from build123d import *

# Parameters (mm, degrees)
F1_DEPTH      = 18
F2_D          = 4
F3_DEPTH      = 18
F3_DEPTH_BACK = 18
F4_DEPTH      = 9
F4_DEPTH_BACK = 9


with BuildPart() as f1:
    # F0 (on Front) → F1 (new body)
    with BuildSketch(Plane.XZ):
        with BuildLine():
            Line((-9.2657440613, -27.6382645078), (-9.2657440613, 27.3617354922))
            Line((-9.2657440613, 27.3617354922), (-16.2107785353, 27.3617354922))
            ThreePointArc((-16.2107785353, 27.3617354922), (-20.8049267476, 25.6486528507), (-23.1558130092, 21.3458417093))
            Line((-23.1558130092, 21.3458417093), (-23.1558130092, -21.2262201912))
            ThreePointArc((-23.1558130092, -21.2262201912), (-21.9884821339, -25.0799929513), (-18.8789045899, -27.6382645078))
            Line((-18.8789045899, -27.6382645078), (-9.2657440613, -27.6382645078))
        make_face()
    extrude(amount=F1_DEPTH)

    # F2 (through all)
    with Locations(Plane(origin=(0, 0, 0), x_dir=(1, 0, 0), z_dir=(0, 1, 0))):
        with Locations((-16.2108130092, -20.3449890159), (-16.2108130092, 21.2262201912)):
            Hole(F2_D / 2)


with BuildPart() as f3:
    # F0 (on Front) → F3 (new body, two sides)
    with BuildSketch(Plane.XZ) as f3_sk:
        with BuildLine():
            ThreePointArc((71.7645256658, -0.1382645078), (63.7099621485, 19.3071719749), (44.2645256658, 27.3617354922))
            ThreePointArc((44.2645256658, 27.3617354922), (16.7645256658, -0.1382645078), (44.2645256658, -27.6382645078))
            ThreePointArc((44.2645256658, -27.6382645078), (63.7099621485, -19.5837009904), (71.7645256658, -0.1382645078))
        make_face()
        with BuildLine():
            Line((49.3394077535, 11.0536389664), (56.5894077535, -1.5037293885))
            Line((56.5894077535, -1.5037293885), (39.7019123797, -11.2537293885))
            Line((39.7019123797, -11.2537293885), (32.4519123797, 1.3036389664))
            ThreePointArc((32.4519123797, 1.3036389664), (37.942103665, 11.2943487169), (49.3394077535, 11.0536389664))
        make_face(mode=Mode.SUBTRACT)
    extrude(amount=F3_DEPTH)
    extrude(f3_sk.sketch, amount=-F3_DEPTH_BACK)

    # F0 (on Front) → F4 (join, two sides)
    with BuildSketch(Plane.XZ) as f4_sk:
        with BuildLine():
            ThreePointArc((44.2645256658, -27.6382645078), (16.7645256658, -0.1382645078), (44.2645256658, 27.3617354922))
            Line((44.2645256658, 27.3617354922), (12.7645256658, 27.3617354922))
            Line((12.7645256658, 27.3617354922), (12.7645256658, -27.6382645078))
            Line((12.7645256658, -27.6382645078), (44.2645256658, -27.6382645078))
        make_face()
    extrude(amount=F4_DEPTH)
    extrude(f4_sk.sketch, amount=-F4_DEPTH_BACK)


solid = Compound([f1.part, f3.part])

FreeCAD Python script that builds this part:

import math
import FreeCAD as App
import Part
import Sketcher

V = App.Vector
Q = App.Units.Quantity

doc = App.newDocument("Part")
body = doc.addObject("PartDesign::Body", "Body")

# Sketch on XZ plane
sketch1 = body.newObject("Sketcher::SketchObject", "Sketch")
sketch1.AttachmentSupport = (doc.getObject("XZ_Plane"), [""])
sketch1.MapMode = "FlatFace"
sketch1.addGeometry([
    Part.LineSegment(V(-9, -28, 0), V(-9, 27, 0)),  # 0
    Part.LineSegment(V(-9, 27, 0), V(-16, 27, 0)),  # 1
    Part.ArcOfCircle(Part.Circle(V(-16, 20, 0), V(0, 0, 1), 7), math.radians(90), math.radians(172)),  # 2
    Part.LineSegment(V(-23, 21, 0), V(-23, -21, 0)),  # 3
    Part.ArcOfCircle(Part.Circle(V(-16, -21, 0), V(0, 0, 1), 7), math.radians(180), math.radians(247)),  # 4
    Part.LineSegment(V(-19, -28, 0), V(-9, -28, 0)),  # 5
], False)
sketch1.addConstraint([
    Sketcher.Constraint("Coincident", 0, 2, 1, 1),
    Sketcher.Constraint("Coincident", 1, 2, 2, 1),
    Sketcher.Constraint("Coincident", 2, 2, 3, 1),
    Sketcher.Constraint("Tangent", 3, 2, 4, 1),
    Sketcher.Constraint("Coincident", 4, 2, 5, 1),
    Sketcher.Constraint("Coincident", 5, 2, 0, 1),
    Sketcher.Constraint("Vertical", 0),
    Sketcher.Constraint("Horizontal", 1),
    Sketcher.Constraint("Vertical", 3),
    Sketcher.Constraint("Horizontal", 5),
    Sketcher.Constraint("Vertical", 2, 3, 4, 3),
    Sketcher.Constraint("DistanceY", 0, 1, 0, 2, Q("55 mm")),
    Sketcher.Constraint("Radius", 4, Q("6.945 mm")),
    Sketcher.Constraint("Radius", 2, Q("7.016746 mm")),
    Sketcher.Constraint("DistanceX", 5, 1, 5, 2, Q("9.613161 mm")),
    Sketcher.Constraint("DistanceY", 3, 2, 3, 1, Q("42.572062 mm")),
    Sketcher.Constraint("DistanceX", 1, 2, 1, 1, Q("6.945034 mm")),
    Sketcher.Constraint("DistanceY", -1, 1, 2, 3, Q("20.344989 mm")),
    Sketcher.Constraint("DistanceX", 1, 2, -1, 1, Q("16.210779 mm")),
])
pad1 = body.newObject("PartDesign::Pad", "Pad")
pad1.Profile = sketch1
pad1.Length = 18

# Sketch on XZ plane
sketch2 = body.newObject("Sketcher::SketchObject", "Sketch001")
sketch2.AttachmentSupport = (doc.getObject("XZ_Plane"), [""])
sketch2.MapMode = "FlatFace"
sketch2.addGeometry([
    Part.Circle(V(-16.2, 20.3, 0), V(0, 0, 1), 2),
    Part.Circle(V(-16.2, -21.2, 0), V(0, 0, 1), 2),
], False)
sketch2.addConstraint([
    Sketcher.Constraint("Equal", 0, 1),
    Sketcher.Constraint("Vertical", 0, 3, 1, 3),
    Sketcher.Constraint("Diameter", 0, Q("4 mm")),
    Sketcher.Constraint("DistanceY", -1, 1, 0, 3, Q("20.344989 mm")),
    Sketcher.Constraint("DistanceY", 1, 3, -1, 1, Q("21.22622 mm")),
    Sketcher.Constraint("DistanceX", 0, 3, -1, 1, Q("16.210813 mm")),
])
doc.recompute()
hole = body.newObject("PartDesign::Hole", "Hole")
hole.Profile = sketch2
hole.ThreadType = "None"
hole.Diameter = 4
hole.DepthType = "ThroughAll"
hole.Reversed = True
body2 = doc.addObject("PartDesign::Body", "Body001")

# Sketch on XZ plane
sketch3 = body2.newObject("Sketcher::SketchObject", "Sketch002")
sketch3.AttachmentSupport = (doc.getObject("XZ_Plane001"), [""])
sketch3.MapMode = "FlatFace"
sketch3.addGeometry([
    Part.ArcOfCircle(Part.Circle(V(44, 0, 0), V(0, 0, 1), 28), math.radians(0), math.radians(90)),  # 0
    Part.ArcOfCircle(Part.Circle(V(44, 0, 0), V(0, 0, 1), 28), math.radians(90), math.radians(270)),  # 1
    Part.ArcOfCircle(Part.Circle(V(44, 0, 0), V(0, 0, 1), 28), math.radians(-90), math.radians(0)),  # 2
    Part.ArcOfCircle(Part.Circle(V(43, 2, 0), V(0, 0, 1), 11), math.radians(58), math.radians(182)),  # 3
    Part.LineSegment(V(49, 11, 0), V(57, -2, 0)),  # 4
    Part.LineSegment(V(57, -2, 0), V(40, -11, 0)),  # 5
    Part.LineSegment(V(40, -11, 0), V(32, 1, 0)),  # 6
], False)
sketch3.addConstraint([
    Sketcher.Constraint("Tangent", 0, 2, 1, 1),
    Sketcher.Constraint("Tangent", 1, 2, 2, 1),
    Sketcher.Constraint("Tangent", 2, 2, 0, 1),
    Sketcher.Constraint("Coincident", 3, 1, 4, 1),
    Sketcher.Constraint("Coincident", 4, 2, 5, 1),
    Sketcher.Constraint("Coincident", 5, 2, 6, 1),
    Sketcher.Constraint("Coincident", 6, 2, 3, 2),
    Sketcher.Constraint("Perpendicular", 4, 5),
    Sketcher.Constraint("Perpendicular", 5, 6),
    Sketcher.Constraint("Horizontal", 1, 3, 2, 2),
    Sketcher.Constraint("Vertical", 2, 3, 0, 2),
    Sketcher.Constraint("Vertical", 0, 2, 1, 2),
    Sketcher.Constraint("Equal", 4, 6),
    Sketcher.Constraint("Radius", 3, Q("11 mm")),
    Sketcher.Constraint("Radius", 0, Q("27.5 mm")),
    Sketcher.Constraint("Angle", 4, Q("-60 deg")),
    Sketcher.Constraint("Distance", 4, Q("14.5 mm")),
    Sketcher.Constraint("Distance", 5, Q("19.5 mm")),
    Sketcher.Constraint("DistanceY", -1, 1, 3, 3, Q("1.768069 mm")),
    Sketcher.Constraint("DistanceX", -1, 1, 0, 3, Q("44.264526 mm")),
    Sketcher.Constraint("DistanceY", 0, 3, -1, 1, Q("0.138265 mm")),
    Sketcher.Constraint("DistanceX", -1, 1, 3, 3, Q("43.442104 mm")),
])
pad2 = body2.newObject("PartDesign::Pad", "Pad001")
pad2.Profile = sketch3
pad2.Type = "TwoLengths"
pad2.Length = 18
pad2.Length2 = 18

# Sketch on XZ plane
sketch4 = body2.newObject("Sketcher::SketchObject", "Sketch003")
sketch4.AttachmentSupport = (doc.getObject("XZ_Plane001"), [""])
sketch4.MapMode = "FlatFace"
sketch4.addGeometry([
    Part.ArcOfCircle(Part.Circle(V(44, 0, 0), V(0, 0, 1), 28), math.radians(90), math.radians(270)),
    Part.LineSegment(V(44, 27, 0), V(13, 27, 0)),
    Part.LineSegment(V(13, 27, 0), V(13, -28, 0)),
    Part.LineSegment(V(13, -28, 0), V(44, -28, 0)),
], False)
sketch4.addConstraint([
    Sketcher.Constraint("Tangent", 0, 1, 1, 1),
    Sketcher.Constraint("Coincident", 1, 2, 2, 1),
    Sketcher.Constraint("Coincident", 2, 2, 3, 1),
    Sketcher.Constraint("Tangent", 3, 2, 0, 2),
    Sketcher.Constraint("Horizontal", 1),
    Sketcher.Constraint("Vertical", 2),
    Sketcher.Constraint("Horizontal", 3),
    Sketcher.Constraint("Radius", 0, Q("27.5 mm")),
    Sketcher.Constraint("DistanceX", 1, 2, 1, 1, Q("31.5 mm")),
    Sketcher.Constraint("DistanceX", -1, 1, 0, 3, Q("44.264526 mm")),
    Sketcher.Constraint("DistanceY", 0, 3, -1, 1, Q("0.138265 mm")),
])
pad3 = body2.newObject("PartDesign::Pad", "Pad002")
pad3.Profile = sketch4
pad3.Type = "TwoLengths"
pad3.Length = 9
pad3.Length2 = 9

doc.recompute()
